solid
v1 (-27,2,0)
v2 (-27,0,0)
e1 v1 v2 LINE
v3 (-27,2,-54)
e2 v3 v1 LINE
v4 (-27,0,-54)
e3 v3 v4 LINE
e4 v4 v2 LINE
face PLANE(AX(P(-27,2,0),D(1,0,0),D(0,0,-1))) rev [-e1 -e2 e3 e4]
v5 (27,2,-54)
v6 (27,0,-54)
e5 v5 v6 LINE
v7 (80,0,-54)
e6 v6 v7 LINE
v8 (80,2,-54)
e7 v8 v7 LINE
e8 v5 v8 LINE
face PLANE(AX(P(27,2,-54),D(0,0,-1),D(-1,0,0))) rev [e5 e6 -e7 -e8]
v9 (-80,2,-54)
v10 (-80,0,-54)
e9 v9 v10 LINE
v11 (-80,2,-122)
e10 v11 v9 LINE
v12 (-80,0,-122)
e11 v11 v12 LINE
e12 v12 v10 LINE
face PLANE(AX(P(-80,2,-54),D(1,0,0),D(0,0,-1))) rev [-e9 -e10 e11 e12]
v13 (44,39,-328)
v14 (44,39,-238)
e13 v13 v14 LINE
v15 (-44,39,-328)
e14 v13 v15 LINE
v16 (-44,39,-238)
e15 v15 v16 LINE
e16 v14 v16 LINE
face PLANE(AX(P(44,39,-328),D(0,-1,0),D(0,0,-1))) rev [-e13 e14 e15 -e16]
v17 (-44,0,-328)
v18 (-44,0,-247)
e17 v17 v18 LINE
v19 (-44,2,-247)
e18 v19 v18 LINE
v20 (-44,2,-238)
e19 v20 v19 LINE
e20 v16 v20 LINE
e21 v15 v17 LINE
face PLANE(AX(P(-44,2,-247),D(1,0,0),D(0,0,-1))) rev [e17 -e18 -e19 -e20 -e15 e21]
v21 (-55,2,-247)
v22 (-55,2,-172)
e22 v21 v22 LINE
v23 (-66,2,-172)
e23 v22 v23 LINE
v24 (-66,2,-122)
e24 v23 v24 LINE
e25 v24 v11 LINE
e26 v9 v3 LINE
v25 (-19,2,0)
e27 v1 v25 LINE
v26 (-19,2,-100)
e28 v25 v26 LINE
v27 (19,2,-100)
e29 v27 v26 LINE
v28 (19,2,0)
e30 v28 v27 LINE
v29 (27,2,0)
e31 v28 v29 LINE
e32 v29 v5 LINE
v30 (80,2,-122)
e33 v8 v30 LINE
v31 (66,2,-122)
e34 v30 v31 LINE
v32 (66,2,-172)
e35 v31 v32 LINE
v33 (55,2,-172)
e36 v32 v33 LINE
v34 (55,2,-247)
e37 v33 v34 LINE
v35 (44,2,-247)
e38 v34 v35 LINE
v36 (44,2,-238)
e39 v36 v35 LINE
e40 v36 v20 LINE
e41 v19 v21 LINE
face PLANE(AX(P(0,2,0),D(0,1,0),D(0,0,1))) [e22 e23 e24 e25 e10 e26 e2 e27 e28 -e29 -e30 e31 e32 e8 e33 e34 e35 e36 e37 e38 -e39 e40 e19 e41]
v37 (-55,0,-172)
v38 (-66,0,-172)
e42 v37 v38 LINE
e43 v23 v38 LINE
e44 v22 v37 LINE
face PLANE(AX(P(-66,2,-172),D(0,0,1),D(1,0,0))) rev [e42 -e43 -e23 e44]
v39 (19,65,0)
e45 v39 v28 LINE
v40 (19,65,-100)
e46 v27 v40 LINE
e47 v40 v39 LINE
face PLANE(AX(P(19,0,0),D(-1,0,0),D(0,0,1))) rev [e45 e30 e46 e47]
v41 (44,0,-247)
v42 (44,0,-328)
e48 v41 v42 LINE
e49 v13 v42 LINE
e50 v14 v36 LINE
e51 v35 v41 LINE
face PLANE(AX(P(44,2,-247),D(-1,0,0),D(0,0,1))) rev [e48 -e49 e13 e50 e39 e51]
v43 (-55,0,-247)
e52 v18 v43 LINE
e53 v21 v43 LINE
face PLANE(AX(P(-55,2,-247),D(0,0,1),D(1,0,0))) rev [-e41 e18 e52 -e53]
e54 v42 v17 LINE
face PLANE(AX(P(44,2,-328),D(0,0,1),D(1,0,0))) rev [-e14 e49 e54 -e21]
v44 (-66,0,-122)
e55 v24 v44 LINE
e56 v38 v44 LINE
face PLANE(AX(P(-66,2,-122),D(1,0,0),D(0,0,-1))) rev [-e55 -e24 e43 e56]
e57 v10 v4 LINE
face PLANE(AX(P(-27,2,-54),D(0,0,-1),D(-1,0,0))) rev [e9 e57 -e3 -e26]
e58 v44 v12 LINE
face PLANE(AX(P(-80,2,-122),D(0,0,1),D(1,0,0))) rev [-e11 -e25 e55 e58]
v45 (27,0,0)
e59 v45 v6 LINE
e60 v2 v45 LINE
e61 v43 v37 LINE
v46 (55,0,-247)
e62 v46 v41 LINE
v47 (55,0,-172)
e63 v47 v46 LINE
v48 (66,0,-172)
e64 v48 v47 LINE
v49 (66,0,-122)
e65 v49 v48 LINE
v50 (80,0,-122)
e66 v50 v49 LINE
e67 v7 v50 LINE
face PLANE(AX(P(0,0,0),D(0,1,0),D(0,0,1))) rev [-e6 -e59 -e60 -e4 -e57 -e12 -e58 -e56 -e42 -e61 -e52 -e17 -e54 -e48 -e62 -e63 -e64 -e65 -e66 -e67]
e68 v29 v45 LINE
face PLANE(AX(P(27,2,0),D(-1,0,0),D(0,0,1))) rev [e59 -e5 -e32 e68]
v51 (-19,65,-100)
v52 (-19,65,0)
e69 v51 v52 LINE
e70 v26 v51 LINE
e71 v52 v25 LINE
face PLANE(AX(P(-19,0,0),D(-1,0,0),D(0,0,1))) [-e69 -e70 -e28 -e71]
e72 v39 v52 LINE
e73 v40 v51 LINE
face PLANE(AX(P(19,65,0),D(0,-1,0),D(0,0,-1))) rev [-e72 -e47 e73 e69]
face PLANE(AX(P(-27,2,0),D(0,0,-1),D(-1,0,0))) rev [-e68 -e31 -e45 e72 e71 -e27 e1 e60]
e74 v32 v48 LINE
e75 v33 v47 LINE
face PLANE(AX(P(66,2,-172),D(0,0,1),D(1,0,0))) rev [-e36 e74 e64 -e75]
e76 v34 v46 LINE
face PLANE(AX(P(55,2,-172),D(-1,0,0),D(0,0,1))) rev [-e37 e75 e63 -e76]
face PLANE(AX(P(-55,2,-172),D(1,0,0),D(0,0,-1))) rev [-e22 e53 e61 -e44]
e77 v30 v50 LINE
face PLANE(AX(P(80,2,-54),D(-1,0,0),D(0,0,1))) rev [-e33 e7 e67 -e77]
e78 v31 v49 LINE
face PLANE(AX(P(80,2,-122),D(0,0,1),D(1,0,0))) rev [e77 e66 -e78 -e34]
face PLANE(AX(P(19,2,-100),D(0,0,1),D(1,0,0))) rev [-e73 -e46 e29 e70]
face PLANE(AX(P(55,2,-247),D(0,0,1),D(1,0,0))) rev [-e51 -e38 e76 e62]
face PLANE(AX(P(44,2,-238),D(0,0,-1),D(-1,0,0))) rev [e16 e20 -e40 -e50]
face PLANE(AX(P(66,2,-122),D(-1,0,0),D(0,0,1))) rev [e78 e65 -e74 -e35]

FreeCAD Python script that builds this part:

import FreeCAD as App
import Part
import Sketcher

V = App.Vector
Q = App.Units.Quantity


def add_polygon(sketch, points):
    """Adds a closed chain of lines whose ends are joined by coincident constraints."""
    first, n = sketch.GeometryCount, len(points)
    for a, b in zip(points, points[1:] + points[:1]):
        sketch.addGeometry(Part.LineSegment(App.Vector(*a, 0), App.Vector(*b, 0)), False)
    for i in range(n):
        sketch.addConstraint(Sketcher.Constraint("Coincident", first + i, 2, first + (i + 1) % n, 1))

doc = App.newDocument("Part")
body = doc.addObject("PartDesign::Body", "Body")

# Sketch on XZ plane
sketch1 = doc.addObject("Sketcher::SketchObject", "Sketch")
body.addObject(sketch1)
sketch1.AttachmentSupport = (doc.XZ_Plane, [""])
sketch1.MapMode = "FlatFace"
add_polygon(sketch1, [(-27, 0), (27, 0), (27, -54), (80, -54), (80, -122), (66, -122), (66, -172), (55, -172), (55, -247), (44, -247), (44, -328), (-44, -328), (-44, -247), (-55, -247), (-55, -172), (-66, -172), (-66, -122), (-80, -122), (-80, -54), (-27, -54)])  # lines 0-19
sketch1.addConstraint([
    Sketcher.Constraint("Horizontal", 0),
    Sketcher.Constraint("Vertical", 1),
    Sketcher.Constraint("Horizontal", 2),
    Sketcher.Constraint("Vertical", 3),
    Sketcher.Constraint("Horizontal", 4),
    Sketcher.Constraint("Vertical", 5),
    Sketcher.Constraint("Horizontal", 6),
    Sketcher.Constraint("Vertical", 7),
    Sketcher.Constraint("Horizontal", 8),
    Sketcher.Constraint("Vertical", 9),
    Sketcher.Constraint("Horizontal", 10),
    Sketcher.Constraint("Vertical", 11),
    Sketcher.Constraint("Horizontal", 12),
    Sketcher.Constraint("Vertical", 13),
    Sketcher.Constraint("Horizontal", 14),
    Sketcher.Constraint("Vertical", 15),
    Sketcher.Constraint("Horizontal", 16),
    Sketcher.Constraint("Vertical", 17),
    Sketcher.Constraint("Horizontal", 18),
    Sketcher.Constraint("Vertical", 19),
    Sketcher.Constraint("Symmetric", 0, 2, 19, 2, -1, 1),
    Sketcher.Constraint("Symmetric", 8, 2, 11, 2, -2),
    Sketcher.Constraint("Symmetric", 6, 2, 13, 2, -2),
    Sketcher.Constraint("Symmetric", 4, 2, 15, 2, -2),
    Sketcher.Constraint("Symmetric", 2, 2, 17, 2, -2),
    Sketcher.Constraint("Equal", 6, 8),
    Sketcher.Constraint("Equal", 0, 1),
    Sketcher.Constraint("DistanceX", 0, 1, 0, 2, Q("54 mm")),
    Sketcher.Constraint("DistanceX", 2, 1, 2, 2, Q("53 mm")),
    Sketcher.Constraint("DistanceX", 4, 2, 4, 1, Q("14 mm")),
    Sketcher.Constraint("DistanceX", 6, 2, 6, 1, Q("11 mm")),
    Sketcher.Constraint("DistanceY", 3, 2, 3, 1, Q("68 mm")),
    Sketcher.Constraint("DistanceY", 5, 2, 5, 1, Q("50 mm")),
    Sketcher.Constraint("DistanceY", 7, 2, 7, 1, Q("75 mm")),
    Sketcher.Constraint("DistanceY", 9, 2, 9, 1, Q("81 mm")),
])
pad1 = doc.addObject("PartDesign::Pad", "Pad")
body.addObject(pad1)
pad1.Profile = sketch1
pad1.Length = 2
pad1.Reversed = True

# Sketch on YZ plane
sketch2 = doc.addObject("Sketcher::SketchObject", "Sketch001")
body.addObject(sketch2)
sketch2.AttachmentSupport = (doc.YZ_Plane, [""])
sketch2.MapMode = "FlatFace"
add_polygon(sketch2, [(65, 0), (2, 0), (2, -100), (65, -100)])  # lines 0-3
sketch2.addConstraint([
    Sketcher.Constraint("Horizontal", 0),
    Sketcher.Constraint("Vertical", 1),
    Sketcher.Constraint("Horizontal", 2),
    Sketcher.Constraint("Vertical", 3),
    Sketcher.Constraint("PointOnObject", 0, 2, -1),
    Sketcher.Constraint("DistanceX", 0, 2, 0, 1, Q("63 mm")),
    Sketcher.Constraint("DistanceY", 1, 2, 1, 1, Q("100 mm")),
    Sketcher.Constraint("DistanceX", -1, 1, 0, 2, Q("2 mm")),
])
pad2 = doc.addObject("PartDesign::Pad", "Pad001")
body.addObject(pad2)
pad2.Profile = sketch2
pad2.Type = "TwoLengths"
pad2.Length = 19
pad2.Length2 = 19

# Sketch on YZ plane
sketch3 = doc.addObject("Sketcher::SketchObject", "Sketch002")
body.addObject(sketch3)
sketch3.AttachmentSupport = (doc.YZ_Plane, [""])
sketch3.MapMode = "FlatFace"
sketch3.AttachmentOffset = App.Placement(V(0, 0, -44), App.Rotation())
add_polygon(sketch3, [(39, -238), (2, -238), (2, -328), (39, -328)])  # lines 0-3
sketch3.addConstraint([
    Sketcher.Constraint("Horizontal", 0),
    Sketcher.Constraint("Vertical", 1),
    Sketcher.Constraint("Horizontal", 2),
    Sketcher.Constraint("Vertical", 3),
    Sketcher.Constraint("DistanceX", 0, 2, 0, 1, Q("37 mm")),
    Sketcher.Constraint("DistanceY", 1, 2, 1, 1, Q("90 mm")),
    Sketcher.Constraint("DistanceX", -1, 1, 0, 2, Q("2 mm")),
    Sketcher.Constraint("DistanceY", 0, 2, -1, 1, Q("238 mm")),
])
pad3 = doc.addObject("PartDesign::Pad", "Pad002")
body.addObject(pad3)
pad3.Profile = sketch3
pad3.Length = 88

doc.recompute()
